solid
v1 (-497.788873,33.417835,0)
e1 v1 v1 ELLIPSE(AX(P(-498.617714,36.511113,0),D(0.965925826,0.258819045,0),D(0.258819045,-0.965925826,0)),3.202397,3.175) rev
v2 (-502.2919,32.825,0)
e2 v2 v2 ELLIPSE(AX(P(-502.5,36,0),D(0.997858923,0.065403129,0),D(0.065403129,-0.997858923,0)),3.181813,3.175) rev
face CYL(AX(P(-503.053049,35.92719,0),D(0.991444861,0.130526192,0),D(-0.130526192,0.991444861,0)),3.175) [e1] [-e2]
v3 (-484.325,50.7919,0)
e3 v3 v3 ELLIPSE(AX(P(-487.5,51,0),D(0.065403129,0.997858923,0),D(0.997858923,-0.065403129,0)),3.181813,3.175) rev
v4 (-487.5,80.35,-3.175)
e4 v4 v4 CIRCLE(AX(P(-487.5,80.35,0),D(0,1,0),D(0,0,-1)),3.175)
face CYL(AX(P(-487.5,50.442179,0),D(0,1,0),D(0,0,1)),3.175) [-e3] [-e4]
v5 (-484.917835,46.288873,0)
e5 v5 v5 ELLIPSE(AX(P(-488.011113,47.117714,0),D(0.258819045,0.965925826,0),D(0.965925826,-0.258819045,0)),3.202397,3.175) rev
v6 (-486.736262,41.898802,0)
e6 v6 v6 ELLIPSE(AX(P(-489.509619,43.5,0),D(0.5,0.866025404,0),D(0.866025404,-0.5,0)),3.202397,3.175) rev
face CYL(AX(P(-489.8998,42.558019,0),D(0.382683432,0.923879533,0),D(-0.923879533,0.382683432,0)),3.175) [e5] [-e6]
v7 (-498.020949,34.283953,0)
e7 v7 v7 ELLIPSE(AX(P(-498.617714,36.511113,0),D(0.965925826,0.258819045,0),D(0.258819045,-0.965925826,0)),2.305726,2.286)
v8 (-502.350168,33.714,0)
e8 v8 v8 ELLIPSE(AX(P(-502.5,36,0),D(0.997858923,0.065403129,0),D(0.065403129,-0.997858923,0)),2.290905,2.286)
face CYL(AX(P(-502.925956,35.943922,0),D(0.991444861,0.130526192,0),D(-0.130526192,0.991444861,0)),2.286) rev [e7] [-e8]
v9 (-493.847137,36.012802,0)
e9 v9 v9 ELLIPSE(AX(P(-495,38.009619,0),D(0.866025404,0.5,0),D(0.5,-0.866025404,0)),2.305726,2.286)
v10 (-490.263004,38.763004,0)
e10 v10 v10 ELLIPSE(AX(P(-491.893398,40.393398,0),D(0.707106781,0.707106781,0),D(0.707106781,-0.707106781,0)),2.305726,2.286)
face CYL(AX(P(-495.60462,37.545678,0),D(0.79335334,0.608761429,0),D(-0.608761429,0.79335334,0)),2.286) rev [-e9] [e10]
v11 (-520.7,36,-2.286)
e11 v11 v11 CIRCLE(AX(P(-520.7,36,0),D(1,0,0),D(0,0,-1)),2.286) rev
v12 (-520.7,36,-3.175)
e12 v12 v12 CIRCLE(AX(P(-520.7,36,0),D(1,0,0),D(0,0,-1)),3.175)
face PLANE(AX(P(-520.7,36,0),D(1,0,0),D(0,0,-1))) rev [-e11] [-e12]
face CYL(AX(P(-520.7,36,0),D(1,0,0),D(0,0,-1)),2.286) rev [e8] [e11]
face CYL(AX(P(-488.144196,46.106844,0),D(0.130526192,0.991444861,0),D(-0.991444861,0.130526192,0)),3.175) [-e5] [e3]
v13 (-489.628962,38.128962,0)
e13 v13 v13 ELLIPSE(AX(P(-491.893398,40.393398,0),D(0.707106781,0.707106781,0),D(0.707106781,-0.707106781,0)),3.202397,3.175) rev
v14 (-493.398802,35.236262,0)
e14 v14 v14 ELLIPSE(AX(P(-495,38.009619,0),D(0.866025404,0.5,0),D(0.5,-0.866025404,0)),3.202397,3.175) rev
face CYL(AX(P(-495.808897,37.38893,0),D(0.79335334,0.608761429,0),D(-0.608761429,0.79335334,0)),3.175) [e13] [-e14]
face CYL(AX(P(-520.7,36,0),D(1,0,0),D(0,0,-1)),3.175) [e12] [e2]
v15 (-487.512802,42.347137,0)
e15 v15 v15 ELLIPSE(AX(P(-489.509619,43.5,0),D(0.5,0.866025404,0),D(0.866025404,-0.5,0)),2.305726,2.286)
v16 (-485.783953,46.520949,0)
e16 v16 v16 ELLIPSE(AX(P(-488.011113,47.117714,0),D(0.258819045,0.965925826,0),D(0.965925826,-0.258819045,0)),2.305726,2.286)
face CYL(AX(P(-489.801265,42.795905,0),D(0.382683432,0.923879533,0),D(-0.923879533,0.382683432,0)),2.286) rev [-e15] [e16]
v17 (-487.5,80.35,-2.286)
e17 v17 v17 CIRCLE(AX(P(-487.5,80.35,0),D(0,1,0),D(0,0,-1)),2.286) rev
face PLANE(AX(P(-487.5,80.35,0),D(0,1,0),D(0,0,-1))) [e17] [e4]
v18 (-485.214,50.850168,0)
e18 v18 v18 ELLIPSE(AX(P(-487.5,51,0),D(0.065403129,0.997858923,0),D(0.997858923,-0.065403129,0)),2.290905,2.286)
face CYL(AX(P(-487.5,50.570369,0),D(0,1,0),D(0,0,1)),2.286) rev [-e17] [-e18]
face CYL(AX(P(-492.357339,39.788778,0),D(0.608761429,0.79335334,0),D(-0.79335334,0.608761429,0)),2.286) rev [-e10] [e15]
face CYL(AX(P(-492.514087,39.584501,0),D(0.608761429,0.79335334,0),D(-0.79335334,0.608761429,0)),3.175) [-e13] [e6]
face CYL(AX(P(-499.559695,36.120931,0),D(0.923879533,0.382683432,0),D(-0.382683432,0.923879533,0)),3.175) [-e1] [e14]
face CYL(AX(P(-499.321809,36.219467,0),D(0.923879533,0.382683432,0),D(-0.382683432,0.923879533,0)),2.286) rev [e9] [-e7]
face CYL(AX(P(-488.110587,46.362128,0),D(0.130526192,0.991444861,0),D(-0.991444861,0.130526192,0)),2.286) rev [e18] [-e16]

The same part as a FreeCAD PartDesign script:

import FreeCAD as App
import Part
import Sketcher

V = App.Vector
Q = App.Units.Quantity

doc = App.newDocument("Part")
params = doc.addObject("Spreadsheet::Sheet", "Params")
for row, (alias, value) in enumerate([
    ("sketch1_diameter", "0.25 in"),
    ("sketch1_diameter2", "0.18 in"),
], start=1):
    params.set(f"A{row}", alias)
    params.set(f"B{row}", "=" + value)
    params.setAlias(f"B{row}", alias)

body = doc.addObject("PartDesign::Body", "Body")

# Sketch on YZ plane
sketch1 = body.newObject("Sketcher::SketchObject", "Sketch")
sketch1.AttachmentSupport = (doc.getObject("YZ_Plane"), [""])
sketch1.MapMode = "FlatFace"
sketch1.AttachmentOffset = App.Placement(V(0, 0, -20.5 * 25.4), App.Rotation())
sketch1.addGeometry(Part.Circle(V(36, 0, 0), V(0, 0, 1), 3.2), False)
sketch1.addGeometry(Part.Circle(V(36, 0, 0), V(0, 0, 1), 2.3), False)
sketch1.addConstraint(Sketcher.Constraint("Coincident", 1, 3, 0, 3))
sketch1.addConstraint(Sketcher.Constraint("PointOnObject", 0, 3, -1))
sketch1.addConstraint(Sketcher.Constraint("Diameter", 0, Q("0.25 in")))
sketch1.addConstraint(Sketcher.Constraint("Diameter", 1, Q("0.18 in")))
sketch1.addConstraint(Sketcher.Constraint("DistanceX", -1, 1, 0, 3, Q("36 mm")))
sketch1.setExpression("Constraints[2]", "Params.sketch1_diameter")
sketch1.setExpression("Constraints[3]", "Params.sketch1_diameter2")

# Sketch on XY plane
sketch2 = body.newObject("Sketcher::SketchObject", "Sketch001")
sketch2.AttachmentSupport = (doc.getObject("XY_Plane"), [""])
sketch2.MapMode = "FlatFace"
sketch2.addGeometry(Part.LineSegment(V(-520.7, 36, 0), V(-502.5, 36, 0)), False)
sketch2.addGeometry(Part.LineSegment(V(-502.5, 36, 0), V(-498.6, 36.5, 0)), False)
sketch2.addGeometry(Part.LineSegment(V(-498.6, 36.5, 0), V(-495, 38, 0)), False)
sketch2.addGeometry(Part.LineSegment(V(-495, 38, 0), V(-491.9, 40.4, 0)), False)
sketch2.addGeometry(Part.LineSegment(V(-491.9, 40.4, 0), V(-489.5, 43.5, 0)), False)
sketch2.addGeometry(Part.LineSegment(V(-489.5, 43.5, 0), V(-488, 47.1, 0)), False)
sketch2.addGeometry(Part.LineSegment(V(-488, 47.1, 0), V(-487.5, 51, 0)), False)
sketch2.addGeometry(Part.LineSegment(V(-487.5, 51, 0), V(-487.5, 80.3, 0)), False)
sketch2.addConstraint(Sketcher.Constraint("Coincident", 0, 2, 1, 1))
sketch2.addConstraint(Sketcher.Constraint("Coincident", 1, 2, 2, 1))
sketch2.addConstraint(Sketcher.Constraint("Coincident", 2, 2, 3, 1))
sketch2.addConstraint(Sketcher.Constraint("Coincident", 3, 2, 4, 1))
sketch2.addConstraint(Sketcher.Constraint("Coincident", 4, 2, 5, 1))
sketch2.addConstraint(Sketcher.Constraint("Coincident", 5, 2, 6, 1))
sketch2.addConstraint(Sketcher.Constraint("Coincident", 6, 2, 7, 1))
sketch2.addConstraint(Sketcher.Constraint("Horizontal", 0))
sketch2.addConstraint(Sketcher.Constraint("Vertical", 7))
sketch2.addConstraint(Sketcher.Constraint("Equal", 1, 2))
sketch2.addConstraint(Sketcher.Constraint("Equal", 2, 3))
sketch2.addConstraint(Sketcher.Constraint("Equal", 3, 4))
sketch2.addConstraint(Sketcher.Constraint("Equal", 4, 5))
sketch2.addConstraint(Sketcher.Constraint("Equal", 5, 6))
sketch2.addConstraint(Sketcher.Constraint("DistanceX", 0, 1, -1, 1, Q("20.5 in")))
sketch2.addConstraint(Sketcher.Constraint("Angle", 1, Q("7.5 deg")))
sketch2.addConstraint(Sketcher.Constraint("Angle", 2, Q("22.5 deg")))
sketch2.addConstraint(Sketcher.Constraint("Angle", 3, Q("37.5 deg")))
sketch2.addConstraint(Sketcher.Constraint("Angle", 4, Q("52.5 deg")))
sketch2.addConstraint(Sketcher.Constraint("Angle", 5, Q("67.5 deg")))
sketch2.addConstraint(Sketcher.Constraint("Angle", 6, Q("82.5 deg")))
sketch2.addConstraint(Sketcher.Constraint("DistanceX", 0, 1, 0, 2, Q("18.2 mm")))
sketch2.addConstraint(Sketcher.Constraint("DistanceY", 7, 1, 7, 2, Q("29.35 mm")))
sketch2.addConstraint(Sketcher.Constraint("DistanceY", -1, 1, 0, 1, Q("36 mm")))
sketch2.addConstraint(Sketcher.Constraint("DistanceX", 2, 2, -1, 1, Q("495 mm")))
doc.recompute()

additivepipe = body.newObject("PartDesign::AdditivePipe", "AdditivePipe")
additivepipe.Profile = sketch1
additivepipe.Spine = (sketch2, ["Edge1", "Edge2", "Edge3", "Edge4", "Edge5", "Edge6", "Edge7", "Edge8"])
additivepipe.Transition = "Right corner"

doc.recompute()
